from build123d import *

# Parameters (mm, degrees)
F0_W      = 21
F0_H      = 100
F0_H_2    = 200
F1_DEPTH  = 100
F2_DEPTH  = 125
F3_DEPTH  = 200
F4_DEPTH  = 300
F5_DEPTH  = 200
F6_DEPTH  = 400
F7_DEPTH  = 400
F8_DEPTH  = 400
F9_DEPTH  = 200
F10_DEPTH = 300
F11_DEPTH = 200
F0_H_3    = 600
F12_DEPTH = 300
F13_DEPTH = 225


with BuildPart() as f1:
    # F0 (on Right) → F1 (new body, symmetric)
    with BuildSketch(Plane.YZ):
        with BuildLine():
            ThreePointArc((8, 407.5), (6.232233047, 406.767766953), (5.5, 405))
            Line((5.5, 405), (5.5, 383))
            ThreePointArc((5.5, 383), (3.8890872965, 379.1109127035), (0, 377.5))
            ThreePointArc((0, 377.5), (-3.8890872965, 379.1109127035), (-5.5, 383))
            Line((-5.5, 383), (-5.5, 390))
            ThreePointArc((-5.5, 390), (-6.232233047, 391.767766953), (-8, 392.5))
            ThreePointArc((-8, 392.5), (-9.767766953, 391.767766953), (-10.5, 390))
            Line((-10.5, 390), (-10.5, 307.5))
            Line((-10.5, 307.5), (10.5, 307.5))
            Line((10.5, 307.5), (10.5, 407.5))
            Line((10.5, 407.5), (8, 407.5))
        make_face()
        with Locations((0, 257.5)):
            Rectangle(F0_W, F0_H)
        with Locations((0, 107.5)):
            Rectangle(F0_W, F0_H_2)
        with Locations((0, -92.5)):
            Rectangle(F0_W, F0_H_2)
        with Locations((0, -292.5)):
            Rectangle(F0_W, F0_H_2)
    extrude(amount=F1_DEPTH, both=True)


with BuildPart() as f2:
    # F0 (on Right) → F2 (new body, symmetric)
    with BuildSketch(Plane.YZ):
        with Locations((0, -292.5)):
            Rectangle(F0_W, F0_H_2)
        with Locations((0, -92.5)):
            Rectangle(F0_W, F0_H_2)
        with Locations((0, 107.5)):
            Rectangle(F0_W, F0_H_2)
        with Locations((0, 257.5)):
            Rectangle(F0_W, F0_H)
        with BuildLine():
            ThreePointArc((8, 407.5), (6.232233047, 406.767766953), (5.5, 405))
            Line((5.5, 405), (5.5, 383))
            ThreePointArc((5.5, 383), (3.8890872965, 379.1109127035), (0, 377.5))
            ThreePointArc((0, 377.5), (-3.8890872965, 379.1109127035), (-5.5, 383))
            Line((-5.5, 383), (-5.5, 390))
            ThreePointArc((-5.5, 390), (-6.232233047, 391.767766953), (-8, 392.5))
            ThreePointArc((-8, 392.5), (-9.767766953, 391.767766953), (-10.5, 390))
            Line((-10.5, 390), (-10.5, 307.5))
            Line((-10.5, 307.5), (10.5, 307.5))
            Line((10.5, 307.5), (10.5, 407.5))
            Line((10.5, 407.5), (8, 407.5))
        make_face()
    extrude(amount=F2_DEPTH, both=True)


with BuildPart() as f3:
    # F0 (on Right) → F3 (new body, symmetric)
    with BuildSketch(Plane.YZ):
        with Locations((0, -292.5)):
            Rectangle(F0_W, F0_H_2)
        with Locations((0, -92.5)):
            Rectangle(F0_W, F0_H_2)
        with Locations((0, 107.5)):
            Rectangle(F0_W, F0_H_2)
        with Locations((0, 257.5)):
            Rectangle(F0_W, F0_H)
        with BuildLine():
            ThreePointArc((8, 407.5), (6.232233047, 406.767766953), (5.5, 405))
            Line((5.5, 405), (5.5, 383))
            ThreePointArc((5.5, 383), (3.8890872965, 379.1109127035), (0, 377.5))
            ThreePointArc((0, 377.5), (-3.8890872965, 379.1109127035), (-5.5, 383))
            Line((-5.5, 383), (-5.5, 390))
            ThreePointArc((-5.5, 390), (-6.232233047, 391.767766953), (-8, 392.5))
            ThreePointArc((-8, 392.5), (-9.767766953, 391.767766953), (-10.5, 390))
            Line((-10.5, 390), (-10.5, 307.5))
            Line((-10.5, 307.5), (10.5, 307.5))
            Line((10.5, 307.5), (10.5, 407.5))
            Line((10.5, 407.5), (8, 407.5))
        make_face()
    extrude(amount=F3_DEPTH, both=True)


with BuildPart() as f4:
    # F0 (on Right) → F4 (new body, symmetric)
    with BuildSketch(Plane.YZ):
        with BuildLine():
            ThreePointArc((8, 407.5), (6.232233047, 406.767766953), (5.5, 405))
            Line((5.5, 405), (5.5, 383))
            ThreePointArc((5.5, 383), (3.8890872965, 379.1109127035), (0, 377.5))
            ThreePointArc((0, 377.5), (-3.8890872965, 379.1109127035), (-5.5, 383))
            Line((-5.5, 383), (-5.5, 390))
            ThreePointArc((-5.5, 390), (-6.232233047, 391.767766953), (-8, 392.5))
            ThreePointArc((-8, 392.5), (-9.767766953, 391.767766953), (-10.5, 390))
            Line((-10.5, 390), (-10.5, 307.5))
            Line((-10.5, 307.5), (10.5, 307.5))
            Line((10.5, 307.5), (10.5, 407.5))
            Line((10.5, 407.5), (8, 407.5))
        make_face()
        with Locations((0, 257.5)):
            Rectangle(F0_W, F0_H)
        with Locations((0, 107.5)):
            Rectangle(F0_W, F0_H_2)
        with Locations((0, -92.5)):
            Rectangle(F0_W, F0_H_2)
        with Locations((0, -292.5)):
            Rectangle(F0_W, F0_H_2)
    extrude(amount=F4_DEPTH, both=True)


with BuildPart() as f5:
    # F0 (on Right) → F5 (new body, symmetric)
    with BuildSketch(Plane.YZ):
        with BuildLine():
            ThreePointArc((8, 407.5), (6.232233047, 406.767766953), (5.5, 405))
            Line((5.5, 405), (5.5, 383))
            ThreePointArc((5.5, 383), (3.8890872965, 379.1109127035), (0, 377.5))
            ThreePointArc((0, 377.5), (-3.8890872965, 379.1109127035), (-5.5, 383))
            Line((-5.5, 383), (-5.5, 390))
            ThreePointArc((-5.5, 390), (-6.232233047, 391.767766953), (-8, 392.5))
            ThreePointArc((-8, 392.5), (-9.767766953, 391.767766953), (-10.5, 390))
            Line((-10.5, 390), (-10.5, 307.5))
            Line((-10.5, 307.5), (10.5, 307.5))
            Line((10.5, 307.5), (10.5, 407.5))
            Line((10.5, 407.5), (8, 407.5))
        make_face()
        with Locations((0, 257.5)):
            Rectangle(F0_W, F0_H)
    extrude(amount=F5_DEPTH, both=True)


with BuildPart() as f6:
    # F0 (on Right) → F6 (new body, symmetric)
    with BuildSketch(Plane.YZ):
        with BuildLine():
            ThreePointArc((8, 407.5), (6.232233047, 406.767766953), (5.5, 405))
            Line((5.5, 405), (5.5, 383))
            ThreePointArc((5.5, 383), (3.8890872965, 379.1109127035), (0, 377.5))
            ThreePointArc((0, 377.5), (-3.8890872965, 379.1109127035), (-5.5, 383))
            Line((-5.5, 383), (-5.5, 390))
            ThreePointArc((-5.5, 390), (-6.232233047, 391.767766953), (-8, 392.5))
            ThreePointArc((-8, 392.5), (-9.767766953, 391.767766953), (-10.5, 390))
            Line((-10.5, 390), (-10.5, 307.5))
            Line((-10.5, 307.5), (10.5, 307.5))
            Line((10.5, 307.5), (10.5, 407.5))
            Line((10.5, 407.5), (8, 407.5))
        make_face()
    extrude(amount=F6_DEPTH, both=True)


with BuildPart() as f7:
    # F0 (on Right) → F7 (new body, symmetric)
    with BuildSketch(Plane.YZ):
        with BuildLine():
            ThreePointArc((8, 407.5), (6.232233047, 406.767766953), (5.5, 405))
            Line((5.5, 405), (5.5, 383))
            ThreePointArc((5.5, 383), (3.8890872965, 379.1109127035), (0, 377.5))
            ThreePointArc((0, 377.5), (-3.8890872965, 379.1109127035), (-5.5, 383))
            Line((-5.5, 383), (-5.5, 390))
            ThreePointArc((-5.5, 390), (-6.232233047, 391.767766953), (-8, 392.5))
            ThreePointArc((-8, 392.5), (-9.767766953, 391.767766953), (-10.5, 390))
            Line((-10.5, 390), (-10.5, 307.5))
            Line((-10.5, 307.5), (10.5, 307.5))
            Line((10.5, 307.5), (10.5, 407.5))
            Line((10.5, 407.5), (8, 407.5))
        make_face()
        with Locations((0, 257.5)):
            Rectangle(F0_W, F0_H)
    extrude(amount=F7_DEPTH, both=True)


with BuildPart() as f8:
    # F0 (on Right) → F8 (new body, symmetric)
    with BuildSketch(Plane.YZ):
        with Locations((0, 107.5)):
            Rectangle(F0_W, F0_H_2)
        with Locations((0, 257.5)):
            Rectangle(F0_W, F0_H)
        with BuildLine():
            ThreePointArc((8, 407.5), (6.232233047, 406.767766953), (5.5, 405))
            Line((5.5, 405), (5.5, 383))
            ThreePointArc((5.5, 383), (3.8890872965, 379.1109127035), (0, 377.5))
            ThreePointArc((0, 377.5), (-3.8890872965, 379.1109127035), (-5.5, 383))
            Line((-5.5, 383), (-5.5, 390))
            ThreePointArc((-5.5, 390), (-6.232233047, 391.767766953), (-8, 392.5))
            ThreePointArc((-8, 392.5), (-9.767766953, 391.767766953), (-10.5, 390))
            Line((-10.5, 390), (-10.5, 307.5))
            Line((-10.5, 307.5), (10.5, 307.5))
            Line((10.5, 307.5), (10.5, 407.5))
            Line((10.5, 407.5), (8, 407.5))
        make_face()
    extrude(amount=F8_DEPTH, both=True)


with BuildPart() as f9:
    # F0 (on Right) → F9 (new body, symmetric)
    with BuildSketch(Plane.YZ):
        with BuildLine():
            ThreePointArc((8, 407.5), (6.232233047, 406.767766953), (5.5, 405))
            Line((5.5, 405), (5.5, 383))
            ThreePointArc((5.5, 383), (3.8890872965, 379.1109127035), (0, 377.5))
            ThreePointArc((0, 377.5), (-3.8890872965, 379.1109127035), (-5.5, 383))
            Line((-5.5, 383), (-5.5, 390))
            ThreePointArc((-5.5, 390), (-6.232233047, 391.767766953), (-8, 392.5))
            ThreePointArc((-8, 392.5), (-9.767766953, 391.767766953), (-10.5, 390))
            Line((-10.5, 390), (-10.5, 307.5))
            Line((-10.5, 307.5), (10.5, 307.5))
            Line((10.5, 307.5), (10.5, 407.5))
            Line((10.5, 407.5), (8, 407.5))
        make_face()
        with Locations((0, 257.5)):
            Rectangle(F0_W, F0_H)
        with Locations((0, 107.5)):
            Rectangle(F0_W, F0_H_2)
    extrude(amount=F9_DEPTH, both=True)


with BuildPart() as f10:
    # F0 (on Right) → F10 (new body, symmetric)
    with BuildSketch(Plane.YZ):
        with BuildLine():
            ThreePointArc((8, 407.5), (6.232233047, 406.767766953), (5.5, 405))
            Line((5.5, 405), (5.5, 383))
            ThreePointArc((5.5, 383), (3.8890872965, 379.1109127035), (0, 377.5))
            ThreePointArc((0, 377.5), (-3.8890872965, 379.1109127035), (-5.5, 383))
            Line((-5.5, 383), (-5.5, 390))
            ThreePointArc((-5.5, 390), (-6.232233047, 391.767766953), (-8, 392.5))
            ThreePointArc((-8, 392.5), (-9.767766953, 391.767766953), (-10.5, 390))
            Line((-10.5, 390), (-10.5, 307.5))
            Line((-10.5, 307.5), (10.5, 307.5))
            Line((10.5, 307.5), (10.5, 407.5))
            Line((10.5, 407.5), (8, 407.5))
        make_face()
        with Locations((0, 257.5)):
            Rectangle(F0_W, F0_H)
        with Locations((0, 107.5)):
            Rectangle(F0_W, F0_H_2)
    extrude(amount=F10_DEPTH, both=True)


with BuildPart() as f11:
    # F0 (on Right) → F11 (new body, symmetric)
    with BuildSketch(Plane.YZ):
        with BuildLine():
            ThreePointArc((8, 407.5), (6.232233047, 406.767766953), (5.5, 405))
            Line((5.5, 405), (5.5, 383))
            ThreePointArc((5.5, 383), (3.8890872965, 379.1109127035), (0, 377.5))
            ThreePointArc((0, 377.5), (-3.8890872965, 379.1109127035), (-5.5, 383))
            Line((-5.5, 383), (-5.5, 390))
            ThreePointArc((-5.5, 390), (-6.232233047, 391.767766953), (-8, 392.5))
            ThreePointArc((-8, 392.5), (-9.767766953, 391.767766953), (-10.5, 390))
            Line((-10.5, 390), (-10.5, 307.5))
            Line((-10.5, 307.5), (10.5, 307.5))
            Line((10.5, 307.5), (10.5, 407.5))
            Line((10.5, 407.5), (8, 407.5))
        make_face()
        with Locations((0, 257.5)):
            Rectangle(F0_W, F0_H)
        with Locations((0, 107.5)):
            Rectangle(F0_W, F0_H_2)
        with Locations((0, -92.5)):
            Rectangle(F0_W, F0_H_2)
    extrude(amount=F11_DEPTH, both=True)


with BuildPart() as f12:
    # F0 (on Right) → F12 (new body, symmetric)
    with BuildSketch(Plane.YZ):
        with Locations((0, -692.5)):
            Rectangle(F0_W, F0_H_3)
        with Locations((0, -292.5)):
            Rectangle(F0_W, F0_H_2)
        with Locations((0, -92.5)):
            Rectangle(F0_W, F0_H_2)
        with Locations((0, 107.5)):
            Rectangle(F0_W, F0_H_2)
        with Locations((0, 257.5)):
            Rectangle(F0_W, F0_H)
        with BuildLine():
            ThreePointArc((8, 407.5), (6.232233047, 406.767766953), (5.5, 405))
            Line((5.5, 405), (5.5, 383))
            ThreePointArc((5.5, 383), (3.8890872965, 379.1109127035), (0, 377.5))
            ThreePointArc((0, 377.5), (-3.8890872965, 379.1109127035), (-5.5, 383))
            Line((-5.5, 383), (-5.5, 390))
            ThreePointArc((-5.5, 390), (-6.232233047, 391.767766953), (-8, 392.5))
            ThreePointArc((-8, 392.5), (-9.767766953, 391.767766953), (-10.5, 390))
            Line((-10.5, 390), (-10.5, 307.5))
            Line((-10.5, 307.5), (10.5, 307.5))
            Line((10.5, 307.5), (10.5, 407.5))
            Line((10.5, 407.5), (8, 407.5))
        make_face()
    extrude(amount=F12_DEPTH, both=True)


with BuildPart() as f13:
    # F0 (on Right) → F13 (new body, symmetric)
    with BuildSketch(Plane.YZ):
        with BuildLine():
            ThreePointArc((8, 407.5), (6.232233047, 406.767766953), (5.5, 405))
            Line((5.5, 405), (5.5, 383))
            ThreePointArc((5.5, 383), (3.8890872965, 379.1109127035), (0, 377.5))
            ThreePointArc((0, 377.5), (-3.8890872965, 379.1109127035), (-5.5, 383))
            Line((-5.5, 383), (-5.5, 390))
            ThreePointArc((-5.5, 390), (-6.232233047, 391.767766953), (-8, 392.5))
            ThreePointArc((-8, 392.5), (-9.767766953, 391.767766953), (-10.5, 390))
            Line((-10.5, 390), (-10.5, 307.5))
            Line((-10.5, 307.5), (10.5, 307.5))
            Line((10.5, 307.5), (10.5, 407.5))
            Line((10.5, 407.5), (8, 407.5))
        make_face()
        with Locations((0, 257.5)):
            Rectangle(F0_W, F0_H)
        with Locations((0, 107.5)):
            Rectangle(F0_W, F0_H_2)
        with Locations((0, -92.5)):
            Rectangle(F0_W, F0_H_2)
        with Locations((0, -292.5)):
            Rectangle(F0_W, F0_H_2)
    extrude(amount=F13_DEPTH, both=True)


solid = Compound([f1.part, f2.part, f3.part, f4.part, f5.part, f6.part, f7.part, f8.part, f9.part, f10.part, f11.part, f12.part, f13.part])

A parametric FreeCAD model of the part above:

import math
import FreeCAD as App
import Part
import Sketcher

V = App.Vector
Q = App.Units.Quantity

doc = App.newDocument("Part")
body = doc.addObject("PartDesign::Body", "Body")

# Sketch on YZ plane
sketch1 = body.newObject("Sketcher::SketchObject", "Sketch")
sketch1.AttachmentSupport = (doc.getObject("YZ_Plane"), [""])
sketch1.MapMode = "FlatFace"
sketch1.addGeometry([
    Part.ArcOfCircle(Part.Circle(V(8, 405, 0), V(0, 0, 1), 2.5), math.radians(90), math.radians(180)),  # 0
    Part.LineSegment(V(5.5, 405, 0), V(5.5, 383, 0)),  # 1
    Part.ArcOfCircle(Part.Circle(V(0, 383, 0), V(0, 0, 1), 5.5), math.radians(-90), math.radians(0)),  # 2
    Part.ArcOfCircle(Part.Circle(V(0, 383, 0), V(0, 0, 1), 5.5), math.radians(180), math.radians(270)),  # 3
    Part.LineSegment(V(-5.5, 383, 0), V(-5.5, 390, 0)),  # 4
    Part.ArcOfCircle(Part.Circle(V(-8, 390, 0), V(0, 0, 1), 2.5), math.radians(0), math.radians(90)),  # 5
    Part.ArcOfCircle(Part.Circle(V(-8, 390, 0), V(0, 0, 1), 2.5), math.radians(90), math.radians(180)),  # 6
    Part.LineSegment(V(-10.5, 390, 0), V(-10.5, -392.5, 0)),  # 7
    Part.LineSegment(V(-10.5, -392.5, 0), V(10.5, -392.5, 0)),  # 8
    Part.LineSegment(V(10.5, -392.5, 0), V(10.5, 407.5, 0)),  # 9
    Part.LineSegment(V(10.5, 407.5, 0), V(8, 407.5, 0)),  # 10
], False)
sketch1.addConstraint([
    Sketcher.Constraint("Tangent", 0, 2, 1, 1),
    Sketcher.Constraint("Tangent", 1, 2, 2, 2),
    Sketcher.Constraint("Tangent", 2, 1, 3, 2),
    Sketcher.Constraint("Tangent", 3, 1, 4, 1),
    Sketcher.Constraint("Tangent", 4, 2, 5, 1),
    Sketcher.Constraint("Tangent", 5, 2, 6, 1),
    Sketcher.Constraint("Tangent", 6, 2, 7, 1),
    Sketcher.Constraint("Coincident", 7, 2, 8, 1),
    Sketcher.Constraint("Coincident", 8, 2, 9, 1),
    Sketcher.Constraint("Coincident", 9, 2, 10, 1),
    Sketcher.Constraint("Tangent", 10, 2, 0, 1),
    Sketcher.Constraint("Vertical", 1),
    Sketcher.Constraint("Vertical", 4),
    Sketcher.Constraint("Vertical", 7),
    Sketcher.Constraint("Horizontal", 8),
    Sketcher.Constraint("Vertical", 9),
    Sketcher.Constraint("Horizontal", 10),
    Sketcher.Constraint("Equal", 2, 3),
    Sketcher.Constraint("Equal", 0, 5),
    Sketcher.Constraint("Equal", 5, 6),
    Sketcher.Constraint("PointOnObject", 2, 3, -2),
    Sketcher.Constraint("PointOnObject", 2, 1, -2),
    Sketcher.Constraint("Vertical", 6, 3, 5, 2),
    Sketcher.Constraint("Radius", 0, Q("2.5 mm")),
    Sketcher.Constraint("Radius", 2, Q("5.5 mm")),
    Sketcher.Constraint("DistanceX", 8, 1, 8, 2, Q("21 mm")),
    Sketcher.Constraint("DistanceY", 1, 2, 1, 1, Q("22 mm")),
    Sketcher.Constraint("DistanceY", 4, 1, 4, 2, Q("7 mm")),
    Sketcher.Constraint("DistanceY", 9, 1, 9, 2, Q("800 mm")),
    Sketcher.Constraint("DistanceY", -1, 1, 0, 3, Q("405 mm")),
])
pad1 = body.newObject("PartDesign::Pad", "Pad")
pad1.Profile = sketch1
pad1.Length = 200
pad1.Midplane = True
body2 = doc.addObject("PartDesign::Body", "Body001")

# Sketch on YZ plane
sketch2 = body2.newObject("Sketcher::SketchObject", "Sketch001")
sketch2.AttachmentSupport = (doc.getObject("YZ_Plane001"), [""])
sketch2.MapMode = "FlatFace"
sketch2.addGeometry([
    Part.LineSegment(V(-10.5, -392.5, 0), V(10.5, -392.5, 0)),  # 0
    Part.LineSegment(V(10.5, -392.5, 0), V(10.5, 407.5, 0)),  # 1
    Part.LineSegment(V(10.5, 407.5, 0), V(8, 407.5, 0)),  # 2
    Part.ArcOfCircle(Part.Circle(V(8, 405, 0), V(0, 0, 1), 2.5), math.radians(90), math.radians(180)),  # 3
    Part.LineSegment(V(5.5, 405, 0), V(5.5, 383, 0)),  # 4
    Part.ArcOfCircle(Part.Circle(V(0, 383, 0), V(0, 0, 1), 5.5), math.radians(-90), math.radians(0)),  # 5
    Part.ArcOfCircle(Part.Circle(V(0, 383, 0), V(0, 0, 1), 5.5), math.radians(180), math.radians(270)),  # 6
    Part.LineSegment(V(-5.5, 383, 0), V(-5.5, 390, 0)),  # 7
    Part.ArcOfCircle(Part.Circle(V(-8, 390, 0), V(0, 0, 1), 2.5), math.radians(0), math.radians(90)),  # 8
    Part.ArcOfCircle(Part.Circle(V(-8, 390, 0), V(0, 0, 1), 2.5), math.radians(90), math.radians(180)),  # 9
    Part.LineSegment(V(-10.5, 390, 0), V(-10.5, -392.5, 0)),  # 10
], False)
sketch2.addConstraint([
    Sketcher.Constraint("Coincident", 0, 2, 1, 1),
    Sketcher.Constraint("Coincident", 1, 2, 2, 1),
    Sketcher.Constraint("Tangent", 2, 2, 3, 1),
    Sketcher.Constraint("Tangent", 3, 2, 4, 1),
    Sketcher.Constraint("Tangent", 4, 2, 5, 2),
    Sketcher.Constraint("Tangent", 5, 1, 6, 2),
    Sketcher.Constraint("Tangent", 6, 1, 7, 1),
    Sketcher.Constraint("Tangent", 7, 2, 8, 1),
    Sketcher.Constraint("Tangent", 8, 2, 9, 1),
    Sketcher.Constraint("Tangent", 9, 2, 10, 1),
    Sketcher.Constraint("Coincident", 10, 2, 0, 1),
    Sketcher.Constraint("Horizontal", 0),
    Sketcher.Constraint("Vertical", 1),
    Sketcher.Constraint("Horizontal", 2),
    Sketcher.Constraint("Vertical", 4),
    Sketcher.Constraint("Vertical", 7),
    Sketcher.Constraint("Vertical", 10),
    Sketcher.Constraint("Equal", 5, 6),
    Sketcher.Constraint("Equal", 3, 8),
    Sketcher.Constraint("Equal", 8, 9),
    Sketcher.Constraint("PointOnObject", 5, 3, -2),
    Sketcher.Constraint("PointOnObject", 5, 1, -2),
    Sketcher.Constraint("Vertical", 9, 3, 8, 2),
    Sketcher.Constraint("Radius", 3, Q("2.5 mm")),
    Sketcher.Constraint("Radius", 5, Q("5.5 mm")),
    Sketcher.Constraint("DistanceX", 0, 1, 0, 2, Q("21 mm")),
    Sketcher.Constraint("DistanceY", 1, 1, 1, 2, Q("800 mm")),
    Sketcher.Constraint("DistanceY", 4, 2, 4, 1, Q("22 mm")),
    Sketcher.Constraint("DistanceY", 7, 1, 7, 2, Q("7 mm")),
    Sketcher.Constraint("DistanceY", -1, 1, 3, 3, Q("405 mm")),
])
pad2 = body2.newObject("PartDesign::Pad", "Pad001")
pad2.Profile = sketch2
pad2.Length = 250
pad2.Midplane = True
body3 = doc.addObject("PartDesign::Body", "Body002")

# Sketch on YZ plane
sketch3 = body3.newObject("Sketcher::SketchObject", "Sketch002")
sketch3.AttachmentSupport = (doc.getObject("YZ_Plane002"), [""])
sketch3.MapMode = "FlatFace"
sketch3.addGeometry([
    Part.LineSegment(V(-10.5, -392.5, 0), V(10.5, -392.5, 0)),  # 0
    Part.LineSegment(V(10.5, -392.5, 0), V(10.5, 407.5, 0)),  # 1
    Part.LineSegment(V(10.5, 407.5, 0), V(8, 407.5, 0)),  # 2
    Part.ArcOfCircle(Part.Circle(V(8, 405, 0), V(0, 0, 1), 2.5), math.radians(90), math.radians(180)),  # 3
    Part.LineSegment(V(5.5, 405, 0), V(5.5, 383, 0)),  # 4
    Part.ArcOfCircle(Part.Circle(V(0, 383, 0), V(0, 0, 1), 5.5), math.radians(-90), math.radians(0)),  # 5
    Part.ArcOfCircle(Part.Circle(V(0, 383, 0), V(0, 0, 1), 5.5), math.radians(180), math.radians(270)),  # 6
    Part.LineSegment(V(-5.5, 383, 0), V(-5.5, 390, 0)),  # 7
    Part.ArcOfCircle(Part.Circle(V(-8, 390, 0), V(0, 0, 1), 2.5), math.radians(0), math.radians(90)),  # 8
    Part.ArcOfCircle(Part.Circle(V(-8, 390, 0), V(0, 0, 1), 2.5), math.radians(90), math.radians(180)),  # 9
    Part.LineSegment(V(-10.5, 390, 0), V(-10.5, -392.5, 0)),  # 10
], False)
sketch3.addConstraint([
    Sketcher.Constraint("Coincident", 0, 2, 1, 1),
    Sketcher.Constraint("Coincident", 1, 2, 2, 1),
    Sketcher.Constraint("Tangent", 2, 2, 3, 1),
    Sketcher.Constraint("Tangent", 3, 2, 4, 1),
    Sketcher.Constraint("Tangent", 4, 2, 5, 2),
    Sketcher.Constraint("Tangent", 5, 1, 6, 2),
    Sketcher.Constraint("Tangent", 6, 1, 7, 1),
    Sketcher.Constraint("Tangent", 7, 2, 8, 1),
    Sketcher.Constraint("Tangent", 8, 2, 9, 1),
    Sketcher.Constraint("Tangent", 9, 2, 10, 1),
    Sketcher.Constraint("Coincident", 10, 2, 0, 1),
    Sketcher.Constraint("Horizontal", 0),
    Sketcher.Constraint("Vertical", 1),
    Sketcher.Constraint("Horizontal", 2),
    Sketcher.Constraint("Vertical", 4),
    Sketcher.Constraint("Vertical", 7),
    Sketcher.Constraint("Vertical", 10),
    Sketcher.Constraint("Equal", 5, 6),
    Sketcher.Constraint("Equal", 3, 8),
    Sketcher.Constraint("Equal", 8, 9),
    Sketcher.Constraint("PointOnObject", 5, 3, -2),
    Sketcher.Constraint("PointOnObject", 5, 1, -2),
    Sketcher.Constraint("Vertical", 9, 3, 8, 2),
    Sketcher.Constraint("Radius", 3, Q("2.5 mm")),
    Sketcher.Constraint("Radius", 5, Q("5.5 mm")),
    Sketcher.Constraint("DistanceX", 0, 1, 0, 2, Q("21 mm")),
    Sketcher.Constraint("DistanceY", 1, 1, 1, 2, Q("800 mm")),
    Sketcher.Constraint("DistanceY", 4, 2, 4, 1, Q("22 mm")),
    Sketcher.Constraint("DistanceY", 7, 1, 7, 2, Q("7 mm")),
    Sketcher.Constraint("DistanceY", -1, 1, 3, 3, Q("405 mm")),
])
pad3 = body3.newObject("PartDesign::Pad", "Pad002")
pad3.Profile = sketch3
pad3.Length = 400
pad3.Midplane = True
body4 = doc.addObject("PartDesign::Body", "Body003")

# Sketch on YZ plane
sketch4 = body4.newObject("Sketcher::SketchObject", "Sketch003")
sketch4.AttachmentSupport = (doc.getObject("YZ_Plane003"), [""])
sketch4.MapMode = "FlatFace"
sketch4.addGeometry([
    Part.ArcOfCircle(Part.Circle(V(8, 405, 0), V(0, 0, 1), 2.5), math.radians(90), math.radians(180)),  # 0
    Part.LineSegment(V(5.5, 405, 0), V(5.5, 383, 0)),  # 1
    Part.ArcOfCircle(Part.Circle(V(0, 383, 0), V(0, 0, 1), 5.5), math.radians(-90), math.radians(0)),  # 2
    Part.ArcOfCircle(Part.Circle(V(0, 383, 0), V(0, 0, 1), 5.5), math.radians(180), math.radians(270)),  # 3
    Part.LineSegment(V(-5.5, 383, 0), V(-5.5, 390, 0)),  # 4
    Part.ArcOfCircle(Part.Circle(V(-8, 390, 0), V(0, 0, 1), 2.5), math.radians(0), math.radians(90)),  # 5
    Part.ArcOfCircle(Part.Circle(V(-8, 390, 0), V(0, 0, 1), 2.5), math.radians(90), math.radians(180)),  # 6
    Part.LineSegment(V(-10.5, 390, 0), V(-10.5, -392.5, 0)),  # 7
    Part.LineSegment(V(-10.5, -392.5, 0), V(10.5, -392.5, 0)),  # 8
    Part.LineSegment(V(10.5, -392.5, 0), V(10.5, 407.5, 0)),  # 9
    Part.LineSegment(V(10.5, 407.5, 0), V(8, 407.5, 0)),  # 10
], False)
sketch4.addConstraint([
    Sketcher.Constraint("Tangent", 0, 2, 1, 1),
    Sketcher.Constraint("Tangent", 1, 2, 2, 2),
    Sketcher.Constraint("Tangent", 2, 1, 3, 2),
    Sketcher.Constraint("Tangent", 3, 1, 4, 1),
    Sketcher.Constraint("Tangent", 4, 2, 5, 1),
    Sketcher.Constraint("Tangent", 5, 2, 6, 1),
    Sketcher.Constraint("Tangent", 6, 2, 7, 1),
    Sketcher.Constraint("Coincident", 7, 2, 8, 1),
    Sketcher.Constraint("Coincident", 8, 2, 9, 1),
    Sketcher.Constraint("Coincident", 9, 2, 10, 1),
    Sketcher.Constraint("Tangent", 10, 2, 0, 1),
    Sketcher.Constraint("Vertical", 1),
    Sketcher.Constraint("Vertical", 4),
    Sketcher.Constraint("Vertical", 7),
    Sketcher.Constraint("Horizontal", 8),
    Sketcher.Constraint("Vertical", 9),
    Sketcher.Constraint("Horizontal", 10),
    Sketcher.Constraint("Equal", 2, 3),
    Sketcher.Constraint("Equal", 0, 5),
    Sketcher.Constraint("Equal", 5, 6),
    Sketcher.Constraint("PointOnObject", 2, 3, -2),
    Sketcher.Constraint("PointOnObject", 2, 1, -2),
    Sketcher.Constraint("Vertical", 6, 3, 5, 2),
    Sketcher.Constraint("Radius", 0, Q("2.5 mm")),
    Sketcher.Constraint("Radius", 2, Q("5.5 mm")),
    Sketcher.Constraint("DistanceX", 8, 1, 8, 2, Q("21 mm")),
    Sketcher.Constraint("DistanceY", 1, 2, 1, 1, Q("22 mm")),
    Sketcher.Constraint("DistanceY", 4, 1, 4, 2, Q("7 mm")),
    Sketcher.Constraint("DistanceY", 9, 1, 9, 2, Q("800 mm")),
    Sketcher.Constraint("DistanceY", -1, 1, 0, 3, Q("405 mm")),
])
pad4 = body4.newObject("PartDesign::Pad", "Pad003")
pad4.Profile = sketch4
pad4.Length = 600
pad4.Midplane = True
body5 = doc.addObject("PartDesign::Body", "Body004")

# Sketch on YZ plane
sketch5 = body5.newObject("Sketcher::SketchObject", "Sketch004")
sketch5.AttachmentSupport = (doc.getObject("YZ_Plane004"), [""])
sketch5.MapMode = "FlatFace"
sketch5.addGeometry([
    Part.ArcOfCircle(Part.Circle(V(8, 405, 0), V(0, 0, 1), 2.5), math.radians(90), math.radians(180)),  # 0
    Part.LineSegment(V(5.5, 405, 0), V(5.5, 383, 0)),  # 1
    Part.ArcOfCircle(Part.Circle(V(0, 383, 0), V(0, 0, 1), 5.5), math.radians(-90), math.radians(0)),  # 2
    Part.ArcOfCircle(Part.Circle(V(0, 383, 0), V(0, 0, 1), 5.5), math.radians(180), math.radians(270)),  # 3
    Part.LineSegment(V(-5.5, 383, 0), V(-5.5, 390, 0)),  # 4
    Part.ArcOfCircle(Part.Circle(V(-8, 390, 0), V(0, 0, 1), 2.5), math.radians(0), math.radians(90)),  # 5
    Part.ArcOfCircle(Part.Circle(V(-8, 390, 0), V(0, 0, 1), 2.5), math.radians(90), math.radians(180)),  # 6
    Part.LineSegment(V(-10.5, 390, 0), V(-10.5, 207.5, 0)),  # 7
    Part.LineSegment(V(-10.5, 207.5, 0), V(10.5, 207.5, 0)),  # 8
    Part.LineSegment(V(10.5, 207.5, 0), V(10.5, 407.5, 0)),  # 9
    Part.LineSegment(V(10.5, 407.5, 0), V(8, 407.5, 0)),  # 10
], False)
sketch5.addConstraint([
    Sketcher.Constraint("Tangent", 0, 2, 1, 1),
    Sketcher.Constraint("Tangent", 1, 2, 2, 2),
    Sketcher.Constraint("Tangent", 2, 1, 3, 2),
    Sketcher.Constraint("Tangent", 3, 1, 4, 1),
    Sketcher.Constraint("Tangent", 4, 2, 5, 1),
    Sketcher.Constraint("Tangent", 5, 2, 6, 1),
    Sketcher.Constraint("Tangent", 6, 2, 7, 1),
    Sketcher.Constraint("Coincident", 7, 2, 8, 1),
    Sketcher.Constraint("Coincident", 8, 2, 9, 1),
    Sketcher.Constraint("Coincident", 9, 2, 10, 1),
    Sketcher.Constraint("Tangent", 10, 2, 0, 1),
    Sketcher.Constraint("Vertical", 1),
    Sketcher.Constraint("Vertical", 4),
    Sketcher.Constraint("Vertical", 7),
    Sketcher.Constraint("Horizontal", 8),
    Sketcher.Constraint("Vertical", 9),
    Sketcher.Constraint("Horizontal", 10),
    Sketcher.Constraint("Equal", 2, 3),
    Sketcher.Constraint("Equal", 0, 5),
    Sketcher.Constraint("Equal", 5, 6),
    Sketcher.Constraint("PointOnObject", 2, 3, -2),
    Sketcher.Constraint("PointOnObject", 2, 1, -2),
    Sketcher.Constraint("Vertical", 6, 3, 5, 2),
    Sketcher.Constraint("Radius", 0, Q("2.5 mm")),
    Sketcher.Constraint("Radius", 2, Q("5.5 mm")),
    Sketcher.Constraint("DistanceX", 8, 1, 8, 2, Q("21 mm")),
    Sketcher.Constraint("DistanceY", 1, 2, 1, 1, Q("22 mm")),
    Sketcher.Constraint("DistanceY", 4, 1, 4, 2, Q("7 mm")),
    Sketcher.Constraint("DistanceY", 9, 1, 9, 2, Q("200 mm")),
    Sketcher.Constraint("DistanceY", -1, 1, 0, 3, Q("405 mm")),
])
pad5 = body5.newObject("PartDesign::Pad", "Pad004")
pad5.Profile = sketch5
pad5.Length = 400
pad5.Midplane = True
body6 = doc.addObject("PartDesign::Body", "Body005")

# Sketch on YZ plane
sketch6 = body6.newObject("Sketcher::SketchObject", "Sketch005")
sketch6.AttachmentSupport = (doc.getObject("YZ_Plane005"), [""])
sketch6.MapMode = "FlatFace"
sketch6.addGeometry([
    Part.ArcOfCircle(Part.Circle(V(8, 405, 0), V(0, 0, 1), 2.5), math.radians(90), math.radians(180)),  # 0
    Part.LineSegment(V(5.5, 405, 0), V(5.5, 383, 0)),  # 1
    Part.ArcOfCircle(Part.Circle(V(0, 383, 0), V(0, 0, 1), 5.5), math.radians(-90), math.radians(0)),  # 2
    Part.ArcOfCircle(Part.Circle(V(0, 383, 0), V(0, 0, 1), 5.5), math.radians(180), math.radians(270)),  # 3
    Part.LineSegment(V(-5.5, 383, 0), V(-5.5, 390, 0)),  # 4
    Part.ArcOfCircle(Part.Circle(V(-8, 390, 0), V(0, 0, 1), 2.5), math.radians(0), math.radians(90)),  # 5
    Part.ArcOfCircle(Part.Circle(V(-8, 390, 0), V(0, 0, 1), 2.5), math.radians(90), math.radians(180)),  # 6
    Part.LineSegment(V(-10.5, 390, 0), V(-10.5, 307.5, 0)),  # 7
    Part.LineSegment(V(-10.5, 307.5, 0), V(10.5, 307.5, 0)),  # 8
    Part.LineSegment(V(10.5, 307.5, 0), V(10.5, 407.5, 0)),  # 9
    Part.LineSegment(V(10.5, 407.5, 0), V(8, 407.5, 0)),  # 10
], False)
sketch6.addConstraint([
    Sketcher.Constraint("Tangent", 0, 2, 1, 1),
    Sketcher.Constraint("Tangent", 1, 2, 2, 2),
    Sketcher.Constraint("Tangent", 2, 1, 3, 2),
    Sketcher.Constraint("Tangent", 3, 1, 4, 1),
    Sketcher.Constraint("Tangent", 4, 2, 5, 1),
    Sketcher.Constraint("Tangent", 5, 2, 6, 1),
    Sketcher.Constraint("Tangent", 6, 2, 7, 1),
    Sketcher.Constraint("Coincident", 7, 2, 8, 1),
    Sketcher.Constraint("Coincident", 8, 2, 9, 1),
    Sketcher.Constraint("Coincident", 9, 2, 10, 1),
    Sketcher.Constraint("Tangent", 10, 2, 0, 1),
    Sketcher.Constraint("Vertical", 1),
    Sketcher.Constraint("Vertical", 4),
    Sketcher.Constraint("Vertical", 7),
    Sketcher.Constraint("Horizontal", 8),
    Sketcher.Constraint("Vertical", 9),
    Sketcher.Constraint("Horizontal", 10),
    Sketcher.Constraint("Equal", 2, 3),
    Sketcher.Constraint("Equal", 0, 5),
    Sketcher.Constraint("Equal", 5, 6),
    Sketcher.Constraint("PointOnObject", 2, 3, -2),
    Sketcher.Constraint("PointOnObject", 2, 1, -2),
    Sketcher.Constraint("Vertical", 6, 3, 5, 2),
    Sketcher.Constraint("Radius", 0, Q("2.5 mm")),
    Sketcher.Constraint("Radius", 2, Q("5.5 mm")),
    Sketcher.Constraint("DistanceX", 8, 1, 8, 2, Q("21 mm")),
    Sketcher.Constraint("DistanceY", 1, 2, 1, 1, Q("22 mm")),
    Sketcher.Constraint("DistanceY", 4, 1, 4, 2, Q("7 mm")),
    Sketcher.Constraint("DistanceY", 9, 1, 9, 2, Q("100 mm")),
    Sketcher.Constraint("DistanceY", -1, 1, 0, 3, Q("405 mm")),
])
pad6 = body6.newObject("PartDesign::Pad", "Pad005")
pad6.Profile = sketch6
pad6.Length = 800
pad6.Midplane = True
body7 = doc.addObject("PartDesign::Body", "Body006")

# Sketch on YZ plane
sketch7 = body7.newObject("Sketcher::SketchObject", "Sketch006")
sketch7.AttachmentSupport = (doc.getObject("YZ_Plane006"), [""])
sketch7.MapMode = "FlatFace"
sketch7.addGeometry([
    Part.ArcOfCircle(Part.Circle(V(8, 405, 0), V(0, 0, 1), 2.5), math.radians(90), math.radians(180)),  # 0
    Part.LineSegment(V(5.5, 405, 0), V(5.5, 383, 0)),  # 1
    Part.ArcOfCircle(Part.Circle(V(0, 383, 0), V(0, 0, 1), 5.5), math.radians(-90), math.radians(0)),  # 2
    Part.ArcOfCircle(Part.Circle(V(0, 383, 0), V(0, 0, 1), 5.5), math.radians(180), math.radians(270)),  # 3
    Part.LineSegment(V(-5.5, 383, 0), V(-5.5, 390, 0)),  # 4
    Part.ArcOfCircle(Part.Circle(V(-8, 390, 0), V(0, 0, 1), 2.5), math.radians(0), math.radians(90)),  # 5
    Part.ArcOfCircle(Part.Circle(V(-8, 390, 0), V(0, 0, 1), 2.5), math.radians(90), math.radians(180)),  # 6
    Part.LineSegment(V(-10.5, 390, 0), V(-10.5, 207.5, 0)),  # 7
    Part.LineSegment(V(-10.5, 207.5, 0), V(10.5, 207.5, 0)),  # 8
    Part.LineSegment(V(10.5, 207.5, 0), V(10.5, 407.5, 0)),  # 9
    Part.LineSegment(V(10.5, 407.5, 0), V(8, 407.5, 0)),  # 10
], False)
sketch7.addConstraint([
    Sketcher.Constraint("Tangent", 0, 2, 1, 1),
    Sketcher.Constraint("Tangent", 1, 2, 2, 2),
    Sketcher.Constraint("Tangent", 2, 1, 3, 2),
    Sketcher.Constraint("Tangent", 3, 1, 4, 1),
    Sketcher.Constraint("Tangent", 4, 2, 5, 1),
    Sketcher.Constraint("Tangent", 5, 2, 6, 1),
    Sketcher.Constraint("Tangent", 6, 2, 7, 1),
    Sketcher.Constraint("Coincident", 7, 2, 8, 1),
    Sketcher.Constraint("Coincident", 8, 2, 9, 1),
    Sketcher.Constraint("Coincident", 9, 2, 10, 1),
    Sketcher.Constraint("Tangent", 10, 2, 0, 1),
    Sketcher.Constraint("Vertical", 1),
    Sketcher.Constraint("Vertical", 4),
    Sketcher.Constraint("Vertical", 7),
    Sketcher.Constraint("Horizontal", 8),
    Sketcher.Constraint("Vertical", 9),
    Sketcher.Constraint("Horizontal", 10),
    Sketcher.Constraint("Equal", 2, 3),
    Sketcher.Constraint("Equal", 0, 5),
    Sketcher.Constraint("Equal", 5, 6),
    Sketcher.Constraint("PointOnObject", 2, 3, -2),
    Sketcher.Constraint("PointOnObject", 2, 1, -2),
    Sketcher.Constraint("Vertical", 6, 3, 5, 2),
    Sketcher.Constraint("Radius", 0, Q("2.5 mm")),
    Sketcher.Constraint("Radius", 2, Q("5.5 mm")),
    Sketcher.Constraint("DistanceX", 8, 1, 8, 2, Q("21 mm")),
    Sketcher.Constraint("DistanceY", 1, 2, 1, 1, Q("22 mm")),
    Sketcher.Constraint("DistanceY", 4, 1, 4, 2, Q("7 mm")),
    Sketcher.Constraint("DistanceY", 9, 1, 9, 2, Q("200 mm")),
    Sketcher.Constraint("DistanceY", -1, 1, 0, 3, Q("405 mm")),
])
pad7 = body7.newObject("PartDesign::Pad", "Pad006")
pad7.Profile = sketch7
pad7.Length = 800
pad7.Midplane = True
body8 = doc.addObject("PartDesign::Body", "Body007")

# Sketch on YZ plane
sketch8 = body8.newObject("Sketcher::SketchObject", "Sketch007")
sketch8.AttachmentSupport = (doc.getObject("YZ_Plane007"), [""])
sketch8.MapMode = "FlatFace"
sketch8.addGeometry([
    Part.LineSegment(V(-10.5, 7.5, 0), V(10.5, 7.5, 0)),  # 0
    Part.LineSegment(V(10.5, 7.5, 0), V(10.5, 407.5, 0)),  # 1
    Part.LineSegment(V(10.5, 407.5, 0), V(8, 407.5, 0)),  # 2
    Part.ArcOfCircle(Part.Circle(V(8, 405, 0), V(0, 0, 1), 2.5), math.radians(90), math.radians(180)),  # 3
    Part.LineSegment(V(5.5, 405, 0), V(5.5, 383, 0)),  # 4
    Part.ArcOfCircle(Part.Circle(V(0, 383, 0), V(0, 0, 1), 5.5), math.radians(-90), math.radians(0)),  # 5
    Part.ArcOfCircle(Part.Circle(V(0, 383, 0), V(0, 0, 1), 5.5), math.radians(180), math.radians(270)),  # 6
    Part.LineSegment(V(-5.5, 383, 0), V(-5.5, 390, 0)),  # 7
    Part.ArcOfCircle(Part.Circle(V(-8, 390, 0), V(0, 0, 1), 2.5), math.radians(0), math.radians(90)),  # 8
    Part.ArcOfCircle(Part.Circle(V(-8, 390, 0), V(0, 0, 1), 2.5), math.radians(90), math.radians(180)),  # 9
    Part.LineSegment(V(-10.5, 390, 0), V(-10.5, 7.5, 0)),  # 10
], False)
sketch8.addConstraint([
    Sketcher.Constraint("Coincident", 0, 2, 1, 1),
    Sketcher.Constraint("Coincident", 1, 2, 2, 1),
    Sketcher.Constraint("Tangent", 2, 2, 3, 1),
    Sketcher.Constraint("Tangent", 3, 2, 4, 1),
    Sketcher.Constraint("Tangent", 4, 2, 5, 2),
    Sketcher.Constraint("Tangent", 5, 1, 6, 2),
    Sketcher.Constraint("Tangent", 6, 1, 7, 1),
    Sketcher.Constraint("Tangent", 7, 2, 8, 1),
    Sketcher.Constraint("Tangent", 8, 2, 9, 1),
    Sketcher.Constraint("Tangent", 9, 2, 10, 1),
    Sketcher.Constraint("Coincident", 10, 2, 0, 1),
    Sketcher.Constraint("Horizontal", 0),
    Sketcher.Constraint("Vertical", 1),
    Sketcher.Constraint("Horizontal", 2),
    Sketcher.Constraint("Vertical", 4),
    Sketcher.Constraint("Vertical", 7),
    Sketcher.Constraint("Vertical", 10),
    Sketcher.Constraint("Equal", 5, 6),
    Sketcher.Constraint("Equal", 3, 8),
    Sketcher.Constraint("Equal", 8, 9),
    Sketcher.Constraint("PointOnObject", 5, 3, -2),
    Sketcher.Constraint("PointOnObject", 5, 1, -2),
    Sketcher.Constraint("Vertical", 9, 3, 8, 2),
    Sketcher.Constraint("Radius", 3, Q("2.5 mm")),
    Sketcher.Constraint("Radius", 5, Q("5.5 mm")),
    Sketcher.Constraint("DistanceX", 0, 1, 0, 2, Q("21 mm")),
    Sketcher.Constraint("DistanceY", 1, 1, 1, 2, Q("400 mm")),
    Sketcher.Constraint("DistanceY", 4, 2, 4, 1, Q("22 mm")),
    Sketcher.Constraint("DistanceY", 7, 1, 7, 2, Q("7 mm")),
    Sketcher.Constraint("DistanceY", -1, 1, 3, 3, Q("405 mm")),
])
pad8 = body8.newObject("PartDesign::Pad", "Pad007")
pad8.Profile = sketch8
pad8.Length = 800
pad8.Midplane = True
body9 = doc.addObject("PartDesign::Body", "Body008")

# Sketch on YZ plane
sketch9 = body9.newObject("Sketcher::SketchObject", "Sketch008")
sketch9.AttachmentSupport = (doc.getObject("YZ_Plane008"), [""])
sketch9.MapMode = "FlatFace"
sketch9.addGeometry([
    Part.ArcOfCircle(Part.Circle(V(8, 405, 0), V(0, 0, 1), 2.5), math.radians(90), math.radians(180)),  # 0
    Part.LineSegment(V(5.5, 405, 0), V(5.5, 383, 0)),  # 1
    Part.ArcOfCircle(Part.Circle(V(0, 383, 0), V(0, 0, 1), 5.5), math.radians(-90), math.radians(0)),  # 2
    Part.ArcOfCircle(Part.Circle(V(0, 383, 0), V(0, 0, 1), 5.5), math.radians(180), math.radians(270)),  # 3
    Part.LineSegment(V(-5.5, 383, 0), V(-5.5, 390, 0)),  # 4
    Part.ArcOfCircle(Part.Circle(V(-8, 390, 0), V(0, 0, 1), 2.5), math.radians(0), math.radians(90)),  # 5
    Part.ArcOfCircle(Part.Circle(V(-8, 390, 0), V(0, 0, 1), 2.5), math.radians(90), math.radians(180)),  # 6
    Part.LineSegment(V(-10.5, 390, 0), V(-10.5, 7.5, 0)),  # 7
    Part.LineSegment(V(-10.5, 7.5, 0), V(10.5, 7.5, 0)),  # 8
    Part.LineSegment(V(10.5, 7.5, 0), V(10.5, 407.5, 0)),  # 9
    Part.LineSegment(V(10.5, 407.5, 0), V(8, 407.5, 0)),  # 10
], False)
sketch9.addConstraint([
    Sketcher.Constraint("Tangent", 0, 2, 1, 1),
    Sketcher.Constraint("Tangent", 1, 2, 2, 2),
    Sketcher.Constraint("Tangent", 2, 1, 3, 2),
    Sketcher.Constraint("Tangent", 3, 1, 4, 1),
    Sketcher.Constraint("Tangent", 4, 2, 5, 1),
    Sketcher.Constraint("Tangent", 5, 2, 6, 1),
    Sketcher.Constraint("Tangent", 6, 2, 7, 1),
    Sketcher.Constraint("Coincident", 7, 2, 8, 1),
    Sketcher.Constraint("Coincident", 8, 2, 9, 1),
    Sketcher.Constraint("Coincident", 9, 2, 10, 1),
    Sketcher.Constraint("Tangent", 10, 2, 0, 1),
    Sketcher.Constraint("Vertical", 1),
    Sketcher.Constraint("Vertical", 4),
    Sketcher.Constraint("Vertical", 7),
    Sketcher.Constraint("Horizontal", 8),
    Sketcher.Constraint("Vertical", 9),
    Sketcher.Constraint("Horizontal", 10),
    Sketcher.Constraint("Equal", 2, 3),
    Sketcher.Constraint("Equal", 0, 5),
    Sketcher.Constraint("Equal", 5, 6),
    Sketcher.Constraint("PointOnObject", 2, 3, -2),
    Sketcher.Constraint("PointOnObject", 2, 1, -2),
    Sketcher.Constraint("Vertical", 6, 3, 5, 2),
    Sketcher.Constraint("Radius", 0, Q("2.5 mm")),
    Sketcher.Constraint("Radius", 2, Q("5.5 mm")),
    Sketcher.Constraint("DistanceX", 8, 1, 8, 2, Q("21 mm")),
    Sketcher.Constraint("DistanceY", 1, 2, 1, 1, Q("22 mm")),
    Sketcher.Constraint("DistanceY", 4, 1, 4, 2, Q("7 mm")),
    Sketcher.Constraint("DistanceY", 9, 1, 9, 2, Q("400 mm")),
    Sketcher.Constraint("DistanceY", -1, 1, 0, 3, Q("405 mm")),
])
pad9 = body9.newObject("PartDesign::Pad", "Pad008")
pad9.Profile = sketch9
pad9.Length = 400
pad9.Midplane = True
body10 = doc.addObject("PartDesign::Body", "Body009")

# Sketch on YZ plane
sketch10 = body10.newObject("Sketcher::SketchObject", "Sketch009")
sketch10.AttachmentSupport = (doc.getObject("YZ_Plane009"), [""])
sketch10.MapMode = "FlatFace"
sketch10.addGeometry([
    Part.ArcOfCircle(Part.Circle(V(8, 405, 0), V(0, 0, 1), 2.5), math.radians(90), math.radians(180)),  # 0
    Part.LineSegment(V(5.5, 405, 0), V(5.5, 383, 0)),  # 1
    Part.ArcOfCircle(Part.Circle(V(0, 383, 0), V(0, 0, 1), 5.5), math.radians(-90), math.radians(0)),  # 2
    Part.ArcOfCircle(Part.Circle(V(0, 383, 0), V(0, 0, 1), 5.5), math.radians(180), math.radians(270)),  # 3
    Part.LineSegment(V(-5.5, 383, 0), V(-5.5, 390, 0)),  # 4
    Part.ArcOfCircle(Part.Circle(V(-8, 390, 0), V(0, 0, 1), 2.5), math.radians(0), math.radians(90)),  # 5
    Part.ArcOfCircle(Part.Circle(V(-8, 390, 0), V(0, 0, 1), 2.5), math.radians(90), math.radians(180)),  # 6
    Part.LineSegment(V(-10.5, 390, 0), V(-10.5, 7.5, 0)),  # 7
    Part.LineSegment(V(-10.5, 7.5, 0), V(10.5, 7.5, 0)),  # 8
    Part.LineSegment(V(10.5, 7.5, 0), V(10.5, 407.5, 0)),  # 9
    Part.LineSegment(V(10.5, 407.5, 0), V(8, 407.5, 0)),  # 10
], False)
sketch10.addConstraint([
    Sketcher.Constraint("Tangent", 0, 2, 1, 1),
    Sketcher.Constraint("Tangent", 1, 2, 2, 2),
    Sketcher.Constraint("Tangent", 2, 1, 3, 2),
    Sketcher.Constraint("Tangent", 3, 1, 4, 1),
    Sketcher.Constraint("Tangent", 4, 2, 5, 1),
    Sketcher.Constraint("Tangent", 5, 2, 6, 1),
    Sketcher.Constraint("Tangent", 6, 2, 7, 1),
    Sketcher.Constraint("Coincident", 7, 2, 8, 1),
    Sketcher.Constraint("Coincident", 8, 2, 9, 1),
    Sketcher.Constraint("Coincident", 9, 2, 10, 1),
    Sketcher.Constraint("Tangent", 10, 2, 0, 1),
    Sketcher.Constraint("Vertical", 1),
    Sketcher.Constraint("Vertical", 4),
    Sketcher.Constraint("Vertical", 7),
    Sketcher.Constraint("Horizontal", 8),
    Sketcher.Constraint("Vertical", 9),
    Sketcher.Constraint("Horizontal", 10),
    Sketcher.Constraint("Equal", 2, 3),
    Sketcher.Constraint("Equal", 0, 5),
    Sketcher.Constraint("Equal", 5, 6),
    Sketcher.Constraint("PointOnObject", 2, 3, -2),
    Sketcher.Constraint("PointOnObject", 2, 1, -2),
    Sketcher.Constraint("Vertical", 6, 3, 5, 2),
    Sketcher.Constraint("Radius", 0, Q("2.5 mm")),
    Sketcher.Constraint("Radius", 2, Q("5.5 mm")),
    Sketcher.Constraint("DistanceX", 8, 1, 8, 2, Q("21 mm")),
    Sketcher.Constraint("DistanceY", 1, 2, 1, 1, Q("22 mm")),
    Sketcher.Constraint("DistanceY", 4, 1, 4, 2, Q("7 mm")),
    Sketcher.Constraint("DistanceY", 9, 1, 9, 2, Q("400 mm")),
    Sketcher.Constraint("DistanceY", -1, 1, 0, 3, Q("405 mm")),
])
pad10 = body10.newObject("PartDesign::Pad", "Pad009")
pad10.Profile = sketch10
pad10.Length = 600
pad10.Midplane = True
body11 = doc.addObject("PartDesign::Body", "Body010")

# Sketch on YZ plane
sketch11 = body11.newObject("Sketcher::SketchObject", "Sketch010")
sketch11.AttachmentSupport = (doc.getObject("YZ_Plane010"), [""])
sketch11.MapMode = "FlatFace"
sketch11.addGeometry([
    Part.ArcOfCircle(Part.Circle(V(8, 405, 0), V(0, 0, 1), 2.5), math.radians(90), math.radians(180)),  # 0
    Part.LineSegment(V(5.5, 405, 0), V(5.5, 383, 0)),  # 1
    Part.ArcOfCircle(Part.Circle(V(0, 383, 0), V(0, 0, 1), 5.5), math.radians(-90), math.radians(0)),  # 2
    Part.ArcOfCircle(Part.Circle(V(0, 383, 0), V(0, 0, 1), 5.5), math.radians(180), math.radians(270)),  # 3
    Part.LineSegment(V(-5.5, 383, 0), V(-5.5, 390, 0)),  # 4
    Part.ArcOfCircle(Part.Circle(V(-8, 390, 0), V(0, 0, 1), 2.5), math.radians(0), math.radians(90)),  # 5
    Part.ArcOfCircle(Part.Circle(V(-8, 390, 0), V(0, 0, 1), 2.5), math.radians(90), math.radians(180)),  # 6
    Part.LineSegment(V(-10.5, 390, 0), V(-10.5, -192.5, 0)),  # 7
    Part.LineSegment(V(-10.5, -192.5, 0), V(10.5, -192.5, 0)),  # 8
    Part.LineSegment(V(10.5, -192.5, 0), V(10.5, 407.5, 0)),  # 9
    Part.LineSegment(V(10.5, 407.5, 0), V(8, 407.5, 0)),  # 10
], False)
sketch11.addConstraint([
    Sketcher.Constraint("Tangent", 0, 2, 1, 1),
    Sketcher.Constraint("Tangent", 1, 2, 2, 2),
    Sketcher.Constraint("Tangent", 2, 1, 3, 2),
    Sketcher.Constraint("Tangent", 3, 1, 4, 1),
    Sketcher.Constraint("Tangent", 4, 2, 5, 1),
    Sketcher.Constraint("Tangent", 5, 2, 6, 1),
    Sketcher.Constraint("Tangent", 6, 2, 7, 1),
    Sketcher.Constraint("Coincident", 7, 2, 8, 1),
    Sketcher.Constraint("Coincident", 8, 2, 9, 1),
    Sketcher.Constraint("Coincident", 9, 2, 10, 1),
    Sketcher.Constraint("Tangent", 10, 2, 0, 1),
    Sketcher.Constraint("Vertical", 1),
    Sketcher.Constraint("Vertical", 4),
    Sketcher.Constraint("Vertical", 7),
    Sketcher.Constraint("Horizontal", 8),
    Sketcher.Constraint("Vertical", 9),
    Sketcher.Constraint("Horizontal", 10),
    Sketcher.Constraint("Equal", 2, 3),
    Sketcher.Constraint("Equal", 0, 5),
    Sketcher.Constraint("Equal", 5, 6),
    Sketcher.Constraint("PointOnObject", 2, 3, -2),
    Sketcher.Constraint("PointOnObject", 2, 1, -2),
    Sketcher.Constraint("Vertical", 6, 3, 5, 2),
    Sketcher.Constraint("Radius", 0, Q("2.5 mm")),
    Sketcher.Constraint("Radius", 2, Q("5.5 mm")),
    Sketcher.Constraint("DistanceX", 8, 1, 8, 2, Q("21 mm")),
    Sketcher.Constraint("DistanceY", 1, 2, 1, 1, Q("22 mm")),
    Sketcher.Constraint("DistanceY", 4, 1, 4, 2, Q("7 mm")),
    Sketcher.Constraint("DistanceY", 9, 1, 9, 2, Q("600 mm")),
    Sketcher.Constraint("DistanceY", -1, 1, 0, 3, Q("405 mm")),
])
pad11 = body11.newObject("PartDesign::Pad", "Pad010")
pad11.Profile = sketch11
pad11.Length = 400
pad11.Midplane = True
body12 = doc.addObject("PartDesign::Body", "Body011")

# Sketch on YZ plane
sketch12 = body12.newObject("Sketcher::SketchObject", "Sketch011")
sketch12.AttachmentSupport = (doc.getObject("YZ_Plane011"), [""])
sketch12.MapMode = "FlatFace"
sketch12.addGeometry([
    Part.LineSegment(V(-10.5, -992.5, 0), V(10.5, -992.5, 0)),  # 0
    Part.LineSegment(V(10.5, -992.5, 0), V(10.5, 407.5, 0)),  # 1
    Part.LineSegment(V(10.5, 407.5, 0), V(8, 407.5, 0)),  # 2
    Part.ArcOfCircle(Part.Circle(V(8, 405, 0), V(0, 0, 1), 2.5), math.radians(90), math.radians(180)),  # 3
    Part.LineSegment(V(5.5, 405, 0), V(5.5, 383, 0)),  # 4
    Part.ArcOfCircle(Part.Circle(V(0, 383, 0), V(0, 0, 1), 5.5), math.radians(-90), math.radians(0)),  # 5
    Part.ArcOfCircle(Part.Circle(V(0, 383, 0), V(0, 0, 1), 5.5), math.radians(180), math.radians(270)),  # 6
    Part.LineSegment(V(-5.5, 383, 0), V(-5.5, 390, 0)),  # 7
    Part.ArcOfCircle(Part.Circle(V(-8, 390, 0), V(0, 0, 1), 2.5), math.radians(0), math.radians(90)),  # 8
    Part.ArcOfCircle(Part.Circle(V(-8, 390, 0), V(0, 0, 1), 2.5), math.radians(90), math.radians(180)),  # 9
    Part.LineSegment(V(-10.5, 390, 0), V(-10.5, -992.5, 0)),  # 10
], False)
sketch12.addConstraint([
    Sketcher.Constraint("Coincident", 0, 2, 1, 1),
    Sketcher.Constraint("Coincident", 1, 2, 2, 1),
    Sketcher.Constraint("Tangent", 2, 2, 3, 1),
    Sketcher.Constraint("Tangent", 3, 2, 4, 1),
    Sketcher.Constraint("Tangent", 4, 2, 5, 2),
    Sketcher.Constraint("Tangent", 5, 1, 6, 2),
    Sketcher.Constraint("Tangent", 6, 1, 7, 1),
    Sketcher.Constraint("Tangent", 7, 2, 8, 1),
    Sketcher.Constraint("Tangent", 8, 2, 9, 1),
    Sketcher.Constraint("Tangent", 9, 2, 10, 1),
    Sketcher.Constraint("Coincident", 10, 2, 0, 1),
    Sketcher.Constraint("Horizontal", 0),
    Sketcher.Constraint("Vertical", 1),
    Sketcher.Constraint("Horizontal", 2),
    Sketcher.Constraint("Vertical", 4),
    Sketcher.Constraint("Vertical", 7),
    Sketcher.Constraint("Vertical", 10),
    Sketcher.Constraint("Equal", 5, 6),
    Sketcher.Constraint("Equal", 3, 8),
    Sketcher.Constraint("Equal", 8, 9),
    Sketcher.Constraint("PointOnObject", 5, 3, -2),
    Sketcher.Constraint("PointOnObject", 5, 1, -2),
    Sketcher.Constraint("Vertical", 9, 3, 8, 2),
    Sketcher.Constraint("Radius", 3, Q("2.5 mm")),
    Sketcher.Constraint("Radius", 5, Q("5.5 mm")),
    Sketcher.Constraint("DistanceX", 0, 1, 0, 2, Q("21 mm")),
    Sketcher.Constraint("DistanceY", 1, 1, 1, 2, Q("1400 mm")),
    Sketcher.Constraint("DistanceY", 4, 2, 4, 1, Q("22 mm")),
    Sketcher.Constraint("DistanceY", 7, 1, 7, 2, Q("7 mm")),
    Sketcher.Constraint("DistanceY", -1, 1, 3, 3, Q("405 mm")),
])
pad12 = body12.newObject("PartDesign::Pad", "Pad011")
pad12.Profile = sketch12
pad12.Length = 600
pad12.Midplane = True
body13 = doc.addObject("PartDesign::Body", "Body012")

# Sketch on YZ plane
sketch13 = body13.newObject("Sketcher::SketchObject", "Sketch012")
sketch13.AttachmentSupport = (doc.getObject("YZ_Plane012"), [""])
sketch13.MapMode = "FlatFace"
sketch13.addGeometry([
    Part.ArcOfCircle(Part.Circle(V(8, 405, 0), V(0, 0, 1), 2.5), math.radians(90), math.radians(180)),  # 0
    Part.LineSegment(V(5.5, 405, 0), V(5.5, 383, 0)),  # 1
    Part.ArcOfCircle(Part.Circle(V(0, 383, 0), V(0, 0, 1), 5.5), math.radians(-90), math.radians(0)),  # 2
    Part.ArcOfCircle(Part.Circle(V(0, 383, 0), V(0, 0, 1), 5.5), math.radians(180), math.radians(270)),  # 3
    Part.LineSegment(V(-5.5, 383, 0), V(-5.5, 390, 0)),  # 4
    Part.ArcOfCircle(Part.Circle(V(-8, 390, 0), V(0, 0, 1), 2.5), math.radians(0), math.radians(90)),  # 5
    Part.ArcOfCircle(Part.Circle(V(-8, 390, 0), V(0, 0, 1), 2.5), math.radians(90), math.radians(180)),  # 6
    Part.LineSegment(V(-10.5, 390, 0), V(-10.5, -392.5, 0)),  # 7
    Part.LineSegment(V(-10.5, -392.5, 0), V(10.5, -392.5, 0)),  # 8
    Part.LineSegment(V(10.5, -392.5, 0), V(10.5, 407.5, 0)),  # 9
    Part.LineSegment(V(10.5, 407.5, 0), V(8, 407.5, 0)),  # 10
], False)
sketch13.addConstraint([
    Sketcher.Constraint("Tangent", 0, 2, 1, 1),
    Sketcher.Constraint("Tangent", 1, 2, 2, 2),
    Sketcher.Constraint("Tangent", 2, 1, 3, 2),
    Sketcher.Constraint("Tangent", 3, 1, 4, 1),
    Sketcher.Constraint("Tangent", 4, 2, 5, 1),
    Sketcher.Constraint("Tangent", 5, 2, 6, 1),
    Sketcher.Constraint("Tangent", 6, 2, 7, 1),
    Sketcher.Constraint("Coincident", 7, 2, 8, 1),
    Sketcher.Constraint("Coincident", 8, 2, 9, 1),
    Sketcher.Constraint("Coincident", 9, 2, 10, 1),
    Sketcher.Constraint("Tangent", 10, 2, 0, 1),
    Sketcher.Constraint("Vertical", 1),
    Sketcher.Constraint("Vertical", 4),
    Sketcher.Constraint("Vertical", 7),
    Sketcher.Constraint("Horizontal", 8),
    Sketcher.Constraint("Vertical", 9),
    Sketcher.Constraint("Horizontal", 10),
    Sketcher.Constraint("Equal", 2, 3),
    Sketcher.Constraint("Equal", 0, 5),
    Sketcher.Constraint("Equal", 5, 6),
    Sketcher.Constraint("PointOnObject", 2, 3, -2),
    Sketcher.Constraint("PointOnObject", 2, 1, -2),
    Sketcher.Constraint("Vertical", 6, 3, 5, 2),
    Sketcher.Constraint("Radius", 0, Q("2.5 mm")),
    Sketcher.Constraint("Radius", 2, Q("5.5 mm")),
    Sketcher.Constraint("DistanceX", 8, 1, 8, 2, Q("21 mm")),
    Sketcher.Constraint("DistanceY", 1, 2, 1, 1, Q("22 mm")),
    Sketcher.Constraint("DistanceY", 4, 1, 4, 2, Q("7 mm")),
    Sketcher.Constraint("DistanceY", 9, 1, 9, 2, Q("800 mm")),
    Sketcher.Constraint("DistanceY", -1, 1, 0, 3, Q("405 mm")),
])
pad13 = body13.newObject("PartDesign::Pad", "Pad012")
pad13.Profile = sketch13
pad13.Length = 450
pad13.Midplane = True

doc.recompute()
